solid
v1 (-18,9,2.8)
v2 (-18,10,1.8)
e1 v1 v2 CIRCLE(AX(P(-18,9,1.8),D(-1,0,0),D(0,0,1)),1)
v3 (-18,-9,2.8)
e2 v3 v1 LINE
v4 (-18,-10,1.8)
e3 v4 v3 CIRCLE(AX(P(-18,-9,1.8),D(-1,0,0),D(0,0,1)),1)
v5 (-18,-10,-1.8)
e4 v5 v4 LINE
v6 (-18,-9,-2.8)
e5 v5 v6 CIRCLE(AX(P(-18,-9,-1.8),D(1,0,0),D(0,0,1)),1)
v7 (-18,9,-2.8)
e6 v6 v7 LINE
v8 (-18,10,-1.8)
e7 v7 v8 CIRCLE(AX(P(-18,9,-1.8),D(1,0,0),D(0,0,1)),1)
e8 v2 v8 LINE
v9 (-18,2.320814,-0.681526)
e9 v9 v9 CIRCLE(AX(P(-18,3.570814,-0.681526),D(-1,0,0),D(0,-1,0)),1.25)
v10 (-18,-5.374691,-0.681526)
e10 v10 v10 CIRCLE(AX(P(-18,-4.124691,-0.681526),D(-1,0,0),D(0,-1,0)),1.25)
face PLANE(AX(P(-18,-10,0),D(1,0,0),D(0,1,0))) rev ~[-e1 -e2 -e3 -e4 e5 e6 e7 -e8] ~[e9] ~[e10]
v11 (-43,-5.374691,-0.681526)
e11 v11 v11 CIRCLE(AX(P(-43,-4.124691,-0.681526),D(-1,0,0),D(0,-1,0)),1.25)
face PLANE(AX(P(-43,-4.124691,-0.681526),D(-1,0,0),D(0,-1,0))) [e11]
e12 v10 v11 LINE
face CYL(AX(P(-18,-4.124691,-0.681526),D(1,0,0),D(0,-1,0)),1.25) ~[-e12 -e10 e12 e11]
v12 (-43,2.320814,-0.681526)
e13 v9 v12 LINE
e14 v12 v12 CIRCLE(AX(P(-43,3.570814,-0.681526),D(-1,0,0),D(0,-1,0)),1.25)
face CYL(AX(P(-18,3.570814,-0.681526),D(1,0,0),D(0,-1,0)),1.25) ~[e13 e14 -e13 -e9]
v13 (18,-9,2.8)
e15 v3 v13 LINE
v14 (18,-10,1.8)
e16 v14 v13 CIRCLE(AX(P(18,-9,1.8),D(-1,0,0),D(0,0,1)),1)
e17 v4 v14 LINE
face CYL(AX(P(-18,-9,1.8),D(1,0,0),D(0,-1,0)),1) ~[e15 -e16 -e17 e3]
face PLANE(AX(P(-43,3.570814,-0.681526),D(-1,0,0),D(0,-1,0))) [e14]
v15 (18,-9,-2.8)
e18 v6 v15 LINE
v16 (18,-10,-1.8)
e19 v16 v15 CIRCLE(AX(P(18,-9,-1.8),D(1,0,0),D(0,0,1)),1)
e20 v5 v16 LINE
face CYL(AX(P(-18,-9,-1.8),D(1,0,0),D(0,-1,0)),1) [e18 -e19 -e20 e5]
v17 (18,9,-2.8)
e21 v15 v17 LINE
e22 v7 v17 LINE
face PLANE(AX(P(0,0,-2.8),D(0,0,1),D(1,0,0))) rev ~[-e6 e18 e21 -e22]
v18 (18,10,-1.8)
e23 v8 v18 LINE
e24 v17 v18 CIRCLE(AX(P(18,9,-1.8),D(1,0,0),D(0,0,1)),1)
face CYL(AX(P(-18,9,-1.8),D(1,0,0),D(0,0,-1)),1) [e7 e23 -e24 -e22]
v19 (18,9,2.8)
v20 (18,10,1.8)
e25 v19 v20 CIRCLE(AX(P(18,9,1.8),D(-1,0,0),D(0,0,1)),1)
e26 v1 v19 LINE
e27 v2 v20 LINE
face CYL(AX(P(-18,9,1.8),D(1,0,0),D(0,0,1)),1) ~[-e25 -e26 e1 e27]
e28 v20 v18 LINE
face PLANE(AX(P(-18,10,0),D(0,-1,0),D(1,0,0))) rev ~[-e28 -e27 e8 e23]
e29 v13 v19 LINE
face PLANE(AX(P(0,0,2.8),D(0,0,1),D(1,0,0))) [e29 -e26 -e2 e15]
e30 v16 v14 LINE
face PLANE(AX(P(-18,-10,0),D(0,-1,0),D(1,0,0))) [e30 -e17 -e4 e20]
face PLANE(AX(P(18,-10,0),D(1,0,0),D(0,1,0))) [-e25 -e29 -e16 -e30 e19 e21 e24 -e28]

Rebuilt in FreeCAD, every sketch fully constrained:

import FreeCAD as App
import Part
import Sketcher


def edges_at(feature, points):
    """Names of the edges that pass closest to the given points."""
    edges = feature.Shape.Edges
    near = lambda p: min(range(len(edges)), key=lambda i: edges[i].distToShape(Part.Vertex(*p))[0])
    return sorted({f"Edge{near(p) + 1}" for p in points})

doc = App.newDocument("Part")
body = doc.addObject("PartDesign::Body", "Body")

sketch1 = body.newObject("Sketcher::SketchObject", "Sketch")
sketch1.AttachmentSupport = (doc.getObject("XY_Plane"), [""])
sketch1.MapMode = "FlatFace"
sketch1.addGeometry([
    Part.LineSegment(App.Vector(-18, 10, 0), App.Vector(-18, -10, 0)),
    Part.LineSegment(App.Vector(-18, -10, 0), App.Vector(18, -10, 0)),
    Part.LineSegment(App.Vector(18, -10, 0), App.Vector(18, 10, 0)),
    Part.LineSegment(App.Vector(18, 10, 0), App.Vector(-18, 10, 0)),
], False)
sketch1.addConstraint([
    Sketcher.Constraint("Coincident", 0, 2, 1, 1),
    Sketcher.Constraint("Coincident", 1, 2, 2, 1),
    Sketcher.Constraint("Coincident", 2, 2, 3, 1),
    Sketcher.Constraint("Coincident", 3, 2, 0, 1),
    Sketcher.Constraint("Vertical", 0),
    Sketcher.Constraint("Horizontal", 1),
    Sketcher.Constraint("Vertical", 2),
    Sketcher.Constraint("Horizontal", 3),
    Sketcher.Constraint("Symmetric", 0, 2, 2, 2, -1, 1),
    Sketcher.Constraint("DistanceX", 1, 1, 1, 2, 36.0),
    Sketcher.Constraint("DistanceY", 0, 2, 0, 1, 20.0),
])
pad1 = body.newObject("PartDesign::Pad", "Pad")
pad1.Profile = sketch1
pad1.Length = 5.6
pad1.Midplane = True

sketch2 = body.newObject("Sketcher::SketchObject", "Sketch001")
sketch2.AttachmentSupport = (doc.getObject("YZ_Plane"), [""])
sketch2.MapMode = "FlatFace"
sketch2.AttachmentOffset = App.Placement(App.Vector(0, 0, -18), App.Rotation())
sketch2.addGeometry([
    Part.Circle(App.Vector(3.6, -0.7, 0), App.Vector(0, 0, 1), 1.2),
    Part.Circle(App.Vector(-4.1, -0.7, 0), App.Vector(0, 0, 1), 1.2),
], False)
sketch2.addConstraint([
    Sketcher.Constraint("Equal", 0, 1),
    Sketcher.Constraint("Horizontal", 0, 3, 1, 3),
    Sketcher.Constraint("Diameter", 0, 2.5),
    Sketcher.Constraint("DistanceX", 1, 3, -1, 1, 4.124691),
    Sketcher.Constraint("DistanceX", -1, 1, 0, 3, 3.570814),
    Sketcher.Constraint("DistanceY", 0, 3, -1, 1, 0.681526),
])
pad2 = body.newObject("PartDesign::Pad", "Pad001")
pad2.Profile = sketch2
pad2.Length = 25
pad2.Reversed = True
doc.recompute()

fillet = body.newObject("PartDesign::Fillet", "Fillet")
fillet.Base = (pad2, edges_at(pad2, [
    (0, -10, 2.8),
    (0, -10, -2.8),
    (0, 10, 2.8),
    (0, 10, -2.8),
]))
fillet.Radius = 1

doc.recompute()
